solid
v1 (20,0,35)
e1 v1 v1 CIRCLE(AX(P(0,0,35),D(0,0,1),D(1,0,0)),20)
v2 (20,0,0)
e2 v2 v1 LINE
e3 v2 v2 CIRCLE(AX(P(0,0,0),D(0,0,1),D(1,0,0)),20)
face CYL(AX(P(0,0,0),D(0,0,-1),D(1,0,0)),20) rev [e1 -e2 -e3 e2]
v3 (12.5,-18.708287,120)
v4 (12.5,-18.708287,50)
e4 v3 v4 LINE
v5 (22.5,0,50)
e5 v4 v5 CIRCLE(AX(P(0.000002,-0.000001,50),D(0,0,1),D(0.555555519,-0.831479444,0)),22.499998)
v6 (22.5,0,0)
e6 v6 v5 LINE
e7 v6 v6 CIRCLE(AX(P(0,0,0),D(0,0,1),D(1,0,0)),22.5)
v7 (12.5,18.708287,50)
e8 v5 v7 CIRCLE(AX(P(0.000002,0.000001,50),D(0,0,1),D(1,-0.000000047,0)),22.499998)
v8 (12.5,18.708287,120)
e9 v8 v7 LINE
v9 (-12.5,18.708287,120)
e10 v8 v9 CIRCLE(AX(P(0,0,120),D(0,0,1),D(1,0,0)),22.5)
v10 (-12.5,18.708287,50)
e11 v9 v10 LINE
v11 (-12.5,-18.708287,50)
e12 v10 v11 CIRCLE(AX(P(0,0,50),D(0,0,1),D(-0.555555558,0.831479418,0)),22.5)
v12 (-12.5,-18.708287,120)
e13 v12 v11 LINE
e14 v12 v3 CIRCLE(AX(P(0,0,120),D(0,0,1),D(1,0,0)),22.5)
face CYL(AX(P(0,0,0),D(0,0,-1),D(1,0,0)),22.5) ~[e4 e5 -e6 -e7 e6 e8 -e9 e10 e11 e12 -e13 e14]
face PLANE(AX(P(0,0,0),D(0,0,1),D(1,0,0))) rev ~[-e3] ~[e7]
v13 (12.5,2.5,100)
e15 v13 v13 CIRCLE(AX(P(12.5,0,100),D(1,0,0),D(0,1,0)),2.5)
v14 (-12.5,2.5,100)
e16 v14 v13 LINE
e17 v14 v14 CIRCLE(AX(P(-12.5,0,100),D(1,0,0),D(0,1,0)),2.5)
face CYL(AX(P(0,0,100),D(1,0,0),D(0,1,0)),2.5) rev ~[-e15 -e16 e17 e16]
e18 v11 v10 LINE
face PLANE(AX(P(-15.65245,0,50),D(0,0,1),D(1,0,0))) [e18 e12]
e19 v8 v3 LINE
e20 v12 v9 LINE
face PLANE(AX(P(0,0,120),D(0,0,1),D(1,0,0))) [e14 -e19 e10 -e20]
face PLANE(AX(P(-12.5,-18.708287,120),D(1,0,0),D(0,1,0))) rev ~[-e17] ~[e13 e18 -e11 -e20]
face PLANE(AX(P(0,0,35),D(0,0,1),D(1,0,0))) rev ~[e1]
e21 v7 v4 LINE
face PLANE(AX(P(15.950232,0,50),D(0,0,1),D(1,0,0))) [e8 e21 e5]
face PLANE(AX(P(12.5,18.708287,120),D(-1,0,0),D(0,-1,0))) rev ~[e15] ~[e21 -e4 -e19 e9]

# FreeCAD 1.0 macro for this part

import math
import FreeCAD as App
import Part
import Sketcher
Q = App.Units.Quantity

doc = App.newDocument("Part")
body = doc.addObject("PartDesign::Body", "Body")

sketch1 = body.newObject("Sketcher::SketchObject", "Sketch")
sketch1.AttachmentSupport = (doc.getObject("XY_Plane"), [""])
sketch1.MapMode = "FlatFace"
sketch1.addGeometry(Part.Circle(App.Vector(0, 0, 0), App.Vector(0, 0, 1), 22), False)
sketch1.addConstraint([
    Sketcher.Constraint("Coincident", 0, 3, -1, 1),
    Sketcher.Constraint("Diameter", 0, Q("45 mm")),
])
pad1 = body.newObject("PartDesign::Pad", "Pad")
pad1.Profile = sketch1
pad1.Length = 120

sketch2 = body.newObject("Sketcher::SketchObject", "Sketch001")
sketch2.AttachmentSupport = (doc.getObject("XY_Plane"), [""])
sketch2.MapMode = "FlatFace"
sketch2.AttachmentOffset = App.Placement(App.Vector(0, 0, 120), App.Rotation())
sketch2.addGeometry([
    Part.ArcOfCircle(Part.Circle(App.Vector(0, 0, 0), App.Vector(0, 0, 1), 22), math.radians(0), math.radians(56)),
    Part.LineSegment(App.Vector(12, 19, 0), App.Vector(12, -19, 0)),
    Part.ArcOfCircle(Part.Circle(App.Vector(0, 0, 0), App.Vector(0, 0, 1), 22), math.radians(-56), math.radians(0)),
    Part.LineSegment(App.Vector(-12, -19, 0), App.Vector(-12, 19, 0)),
    Part.ArcOfCircle(Part.Circle(App.Vector(0, 0, 0), App.Vector(0, 0, 1), 23), math.radians(124), math.radians(236)),
], False)
sketch2.addConstraint([
    Sketcher.Constraint("Coincident", 0, 2, 1, 1),
    Sketcher.Constraint("Coincident", 1, 2, 2, 1),
    Sketcher.Constraint("Tangent", 2, 2, 0, 1),
    Sketcher.Constraint("Coincident", 3, 1, 4, 2),
    Sketcher.Constraint("Coincident", 4, 1, 3, 2),
    Sketcher.Constraint("Vertical", 1),
    Sketcher.Constraint("Vertical", 3),
    Sketcher.Constraint("Coincident", 0, 3, -1, 1),
    Sketcher.Constraint("Coincident", 4, 3, -1, 1),
    Sketcher.Constraint("Equal", 0, 2),
    Sketcher.Constraint("Equal", 2, 4),
    Sketcher.Constraint("PointOnObject", 2, 2, -1),
    Sketcher.Constraint("Horizontal", 1, 2, 3, 1),
    Sketcher.Constraint("Radius", 0, Q("22.499998 mm")),
    Sketcher.Constraint("DistanceX", 1, 2, 2, 2, Q("10 mm")),
])
pocket1 = body.newObject("PartDesign::Pocket", "Pocket")
pocket1.Profile = sketch2
pocket1.Length = 70

sketch3 = body.newObject("Sketcher::SketchObject", "Sketch002")
sketch3.AttachmentSupport = (doc.getObject("XY_Plane"), [""])
sketch3.MapMode = "FlatFace"
sketch3.addGeometry(Part.Circle(App.Vector(0, 0, 0), App.Vector(0, 0, 1), 20), False)
sketch3.addConstraint([
    Sketcher.Constraint("Coincident", 0, 3, -1, 1),
    Sketcher.Constraint("Diameter", 0, Q("40 mm")),
])
pocket2 = body.newObject("PartDesign::Pocket", "Pocket001")
pocket2.Profile = sketch3
pocket2.Length = 35
pocket2.Reversed = True

sketch4 = body.newObject("Sketcher::SketchObject", "Sketch003")
sketch4.AttachmentSupport = (doc.getObject("YZ_Plane"), [""])
sketch4.MapMode = "FlatFace"
sketch4.addGeometry(Part.Circle(App.Vector(0, 100, 0), App.Vector(0, 0, 1), 2.5), False)
sketch4.addConstraint([
    Sketcher.Constraint("PointOnObject", 0, 3, -2),
    Sketcher.Constraint("Diameter", 0, Q("5 mm")),
    Sketcher.Constraint("DistanceY", -1, 1, 0, 3, Q("100 mm")),
])
pocket3 = body.newObject("PartDesign::Pocket", "Pocket002")
pocket3.Profile = sketch4
pocket3.Length = 100
pocket3.Midplane = True

doc.recompute()
